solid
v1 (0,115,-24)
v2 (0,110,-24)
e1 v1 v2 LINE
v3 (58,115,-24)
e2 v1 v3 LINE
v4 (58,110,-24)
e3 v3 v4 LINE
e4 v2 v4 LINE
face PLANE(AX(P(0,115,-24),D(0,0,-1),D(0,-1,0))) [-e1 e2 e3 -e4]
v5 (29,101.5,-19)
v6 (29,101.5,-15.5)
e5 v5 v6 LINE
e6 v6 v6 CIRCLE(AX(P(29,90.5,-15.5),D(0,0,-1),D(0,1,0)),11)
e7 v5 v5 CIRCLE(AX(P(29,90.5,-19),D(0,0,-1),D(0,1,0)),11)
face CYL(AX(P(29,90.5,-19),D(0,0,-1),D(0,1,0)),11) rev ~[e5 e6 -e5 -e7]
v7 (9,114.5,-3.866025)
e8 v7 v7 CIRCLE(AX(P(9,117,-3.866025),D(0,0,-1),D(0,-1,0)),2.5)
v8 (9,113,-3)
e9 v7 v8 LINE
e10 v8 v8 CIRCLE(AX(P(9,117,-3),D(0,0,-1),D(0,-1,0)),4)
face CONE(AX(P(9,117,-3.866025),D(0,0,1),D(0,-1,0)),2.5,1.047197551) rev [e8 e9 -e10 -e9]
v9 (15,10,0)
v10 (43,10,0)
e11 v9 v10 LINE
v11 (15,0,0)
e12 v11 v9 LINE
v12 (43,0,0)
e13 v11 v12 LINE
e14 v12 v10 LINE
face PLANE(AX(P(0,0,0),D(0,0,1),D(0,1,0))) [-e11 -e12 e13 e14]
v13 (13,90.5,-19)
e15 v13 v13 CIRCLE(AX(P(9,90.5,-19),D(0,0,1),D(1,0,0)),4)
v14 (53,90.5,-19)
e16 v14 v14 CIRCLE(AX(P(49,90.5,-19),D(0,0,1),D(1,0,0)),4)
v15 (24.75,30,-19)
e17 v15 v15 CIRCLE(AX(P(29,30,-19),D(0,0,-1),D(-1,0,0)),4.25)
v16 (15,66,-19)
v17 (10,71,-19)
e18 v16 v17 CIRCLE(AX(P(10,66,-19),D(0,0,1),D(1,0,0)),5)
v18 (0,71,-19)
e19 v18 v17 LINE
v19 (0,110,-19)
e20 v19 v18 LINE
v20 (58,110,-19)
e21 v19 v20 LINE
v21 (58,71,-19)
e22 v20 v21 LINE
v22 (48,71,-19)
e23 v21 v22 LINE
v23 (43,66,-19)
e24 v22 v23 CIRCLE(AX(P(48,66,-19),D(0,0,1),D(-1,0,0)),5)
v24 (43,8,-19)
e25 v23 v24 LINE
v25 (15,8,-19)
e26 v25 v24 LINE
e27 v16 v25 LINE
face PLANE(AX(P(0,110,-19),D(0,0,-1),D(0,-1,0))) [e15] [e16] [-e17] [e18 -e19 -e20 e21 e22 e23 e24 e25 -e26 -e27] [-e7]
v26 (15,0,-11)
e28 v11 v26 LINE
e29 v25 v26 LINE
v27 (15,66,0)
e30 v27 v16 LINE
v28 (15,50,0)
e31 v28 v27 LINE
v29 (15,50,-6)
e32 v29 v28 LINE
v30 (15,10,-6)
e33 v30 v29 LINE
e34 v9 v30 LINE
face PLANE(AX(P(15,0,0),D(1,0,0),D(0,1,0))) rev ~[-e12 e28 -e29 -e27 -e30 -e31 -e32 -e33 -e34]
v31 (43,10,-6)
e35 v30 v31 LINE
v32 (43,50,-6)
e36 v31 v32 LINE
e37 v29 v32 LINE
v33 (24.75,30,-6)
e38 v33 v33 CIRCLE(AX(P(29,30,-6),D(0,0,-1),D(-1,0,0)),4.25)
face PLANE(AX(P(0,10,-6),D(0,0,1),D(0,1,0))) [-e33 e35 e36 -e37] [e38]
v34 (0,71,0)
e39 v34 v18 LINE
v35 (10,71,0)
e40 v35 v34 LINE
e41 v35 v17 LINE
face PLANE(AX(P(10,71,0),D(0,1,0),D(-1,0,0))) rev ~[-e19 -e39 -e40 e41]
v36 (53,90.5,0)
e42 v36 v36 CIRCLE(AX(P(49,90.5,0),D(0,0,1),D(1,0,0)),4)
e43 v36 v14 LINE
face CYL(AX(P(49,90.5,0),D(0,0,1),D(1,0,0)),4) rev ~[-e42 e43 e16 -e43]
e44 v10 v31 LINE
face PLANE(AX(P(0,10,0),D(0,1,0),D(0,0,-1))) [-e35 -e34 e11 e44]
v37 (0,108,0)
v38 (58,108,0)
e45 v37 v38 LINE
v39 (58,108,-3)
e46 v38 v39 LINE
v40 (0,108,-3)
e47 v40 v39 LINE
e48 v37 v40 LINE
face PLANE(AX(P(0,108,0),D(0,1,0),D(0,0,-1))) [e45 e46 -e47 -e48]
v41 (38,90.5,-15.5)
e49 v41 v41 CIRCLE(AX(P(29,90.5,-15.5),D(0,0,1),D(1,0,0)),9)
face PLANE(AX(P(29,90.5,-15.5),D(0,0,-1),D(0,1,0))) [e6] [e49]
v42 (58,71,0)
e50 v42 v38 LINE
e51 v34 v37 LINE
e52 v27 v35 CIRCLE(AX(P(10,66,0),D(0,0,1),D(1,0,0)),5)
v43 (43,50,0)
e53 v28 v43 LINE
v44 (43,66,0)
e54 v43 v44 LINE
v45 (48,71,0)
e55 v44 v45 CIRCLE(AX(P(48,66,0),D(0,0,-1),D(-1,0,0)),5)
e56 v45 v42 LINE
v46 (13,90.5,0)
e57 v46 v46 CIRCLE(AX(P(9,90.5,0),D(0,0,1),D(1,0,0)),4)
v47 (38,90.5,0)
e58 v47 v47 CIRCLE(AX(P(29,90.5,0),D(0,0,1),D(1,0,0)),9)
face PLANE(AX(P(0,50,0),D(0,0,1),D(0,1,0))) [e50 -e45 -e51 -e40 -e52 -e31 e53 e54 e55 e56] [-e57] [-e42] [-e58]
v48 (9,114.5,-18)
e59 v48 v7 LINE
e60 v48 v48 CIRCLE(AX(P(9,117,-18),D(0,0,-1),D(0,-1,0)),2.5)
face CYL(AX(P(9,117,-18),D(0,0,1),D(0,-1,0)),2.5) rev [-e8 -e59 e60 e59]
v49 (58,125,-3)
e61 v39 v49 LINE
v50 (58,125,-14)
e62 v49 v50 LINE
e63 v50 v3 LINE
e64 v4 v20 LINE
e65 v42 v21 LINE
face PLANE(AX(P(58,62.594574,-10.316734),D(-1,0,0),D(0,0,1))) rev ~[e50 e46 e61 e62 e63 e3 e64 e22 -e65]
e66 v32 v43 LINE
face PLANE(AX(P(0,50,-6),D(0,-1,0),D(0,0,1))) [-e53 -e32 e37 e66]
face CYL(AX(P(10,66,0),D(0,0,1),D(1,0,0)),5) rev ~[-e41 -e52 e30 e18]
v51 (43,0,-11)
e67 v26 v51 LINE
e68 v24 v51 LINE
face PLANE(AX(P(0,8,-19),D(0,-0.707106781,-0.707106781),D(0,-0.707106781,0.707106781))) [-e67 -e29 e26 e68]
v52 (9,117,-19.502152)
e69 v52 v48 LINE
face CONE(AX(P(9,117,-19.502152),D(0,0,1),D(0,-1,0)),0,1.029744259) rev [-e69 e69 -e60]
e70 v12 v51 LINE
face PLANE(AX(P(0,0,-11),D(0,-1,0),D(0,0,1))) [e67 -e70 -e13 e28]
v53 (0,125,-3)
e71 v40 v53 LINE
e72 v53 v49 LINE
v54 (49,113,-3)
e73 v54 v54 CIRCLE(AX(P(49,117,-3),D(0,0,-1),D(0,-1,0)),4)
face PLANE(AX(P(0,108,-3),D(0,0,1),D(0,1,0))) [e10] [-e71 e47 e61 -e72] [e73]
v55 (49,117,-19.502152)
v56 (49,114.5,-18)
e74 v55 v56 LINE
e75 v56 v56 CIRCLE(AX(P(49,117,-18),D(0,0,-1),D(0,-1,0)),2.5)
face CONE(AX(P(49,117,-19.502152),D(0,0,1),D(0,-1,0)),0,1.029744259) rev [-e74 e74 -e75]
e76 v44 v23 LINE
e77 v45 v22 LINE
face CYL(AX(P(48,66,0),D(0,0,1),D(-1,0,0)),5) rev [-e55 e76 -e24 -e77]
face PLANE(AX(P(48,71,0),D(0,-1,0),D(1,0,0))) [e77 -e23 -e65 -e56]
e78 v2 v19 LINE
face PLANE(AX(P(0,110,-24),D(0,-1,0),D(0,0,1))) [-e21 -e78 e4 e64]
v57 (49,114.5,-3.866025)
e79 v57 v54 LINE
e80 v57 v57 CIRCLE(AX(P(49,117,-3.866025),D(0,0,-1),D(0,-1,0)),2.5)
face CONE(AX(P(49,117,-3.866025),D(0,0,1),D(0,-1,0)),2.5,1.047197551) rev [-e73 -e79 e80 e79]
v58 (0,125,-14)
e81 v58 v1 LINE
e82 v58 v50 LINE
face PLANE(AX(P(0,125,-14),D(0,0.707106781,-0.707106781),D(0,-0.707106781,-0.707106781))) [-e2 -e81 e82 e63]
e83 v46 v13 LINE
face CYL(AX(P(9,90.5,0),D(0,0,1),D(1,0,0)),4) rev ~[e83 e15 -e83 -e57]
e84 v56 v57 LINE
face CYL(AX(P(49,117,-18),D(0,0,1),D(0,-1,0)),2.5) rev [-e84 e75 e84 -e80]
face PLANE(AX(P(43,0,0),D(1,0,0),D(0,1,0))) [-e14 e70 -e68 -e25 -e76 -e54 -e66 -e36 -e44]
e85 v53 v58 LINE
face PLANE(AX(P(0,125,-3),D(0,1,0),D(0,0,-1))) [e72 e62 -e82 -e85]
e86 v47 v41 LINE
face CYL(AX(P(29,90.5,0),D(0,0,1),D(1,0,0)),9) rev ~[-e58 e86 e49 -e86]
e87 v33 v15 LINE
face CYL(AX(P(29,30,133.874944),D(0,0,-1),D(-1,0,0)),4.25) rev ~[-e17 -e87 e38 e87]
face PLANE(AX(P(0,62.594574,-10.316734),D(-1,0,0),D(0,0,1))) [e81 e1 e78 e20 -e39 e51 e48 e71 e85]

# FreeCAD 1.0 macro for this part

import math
import FreeCAD as App
import Part
import Sketcher
Q = App.Units.Quantity


def add_polygon(sketch, points):
    """Adds a closed chain of lines whose ends are joined by coincident constraints."""
    first, n = sketch.GeometryCount, len(points)
    for a, b in zip(points, points[1:] + points[:1]):
        sketch.addGeometry(Part.LineSegment(App.Vector(*a, 0), App.Vector(*b, 0)), False)
    for i in range(n):
        sketch.addConstraint(Sketcher.Constraint("Coincident", first + i, 2, first + (i + 1) % n, 1))

doc = App.newDocument("Part")
params = doc.addObject("Spreadsheet::Sheet", "Params")
for row, (alias, value) in enumerate([
    ("sketch1_width", "10 mm"),
    ("sketch1_width2", "102 mm"),
    ("sketch1_width3", "5 mm"),
    ("sketch1_width4", "17 mm"),
    ("sketch1_width5", "58 mm"),
    ("pad1_length", "58 mm"),
    ("sketch2_diameter", "8 mm"),
    ("sketch2_diameter2", "18 mm"),
    ("sketch2_radius", "5 mm"),
    ("sketch2_width", "15 mm"),
    ("sketch2_height", "71 mm"),
    ("sketch3_diameter", "22 mm"),
    ("pocket2_length", "3.5 mm"),
    ("sketch4_width", "4 mm"),
    ("groove_angle", "360 deg"),
    ("linearpattern_pitch", "40 mm"),
    ("sketch5_diameter", "8.5 mm"),
    ("hole_diameter", "8.5 mm"),
], start=1):
    params.set(f"A{row}", alias)
    params.set(f"B{row}", "=" + value)
    params.setAlias(f"B{row}", alias)

body = doc.addObject("PartDesign::Body", "Body")

sketch1 = body.newObject("Sketcher::SketchObject", "Sketch")
sketch1.AttachmentSupport = (doc.getObject("YZ_Plane"), [""])
sketch1.MapMode = "FlatFace"
add_polygon(sketch1, [(10, 0), (0, 0), (0, -11), (8, -19), (110, -19), (110, -24), (115, -24), (125, -14), (125, -3), (108, -3), (108, 0), (50, 0), (50, -6), (10, -6)])
sketch1.addConstraint(Sketcher.Constraint("Horizontal", 0))
sketch1.addConstraint(Sketcher.Constraint("Vertical", 1))
sketch1.addConstraint(Sketcher.Constraint("Horizontal", 3))
sketch1.addConstraint(Sketcher.Constraint("Vertical", 4))
sketch1.addConstraint(Sketcher.Constraint("Horizontal", 5))
sketch1.addConstraint(Sketcher.Constraint("Vertical", 7))
sketch1.addConstraint(Sketcher.Constraint("Horizontal", 8))
sketch1.addConstraint(Sketcher.Constraint("Vertical", 9))
sketch1.addConstraint(Sketcher.Constraint("Horizontal", 10))
sketch1.addConstraint(Sketcher.Constraint("Vertical", 11))
sketch1.addConstraint(Sketcher.Constraint("Horizontal", 12))
sketch1.addConstraint(Sketcher.Constraint("Vertical", 13))
sketch1.addConstraint(Sketcher.Constraint("Coincident", 0, 2, -1, 1))
sketch1.addConstraint(Sketcher.Constraint("PointOnObject", 9, 2, -1))
sketch1.addConstraint(Sketcher.Constraint("Perpendicular", 2, 6))
sketch1.addConstraint(Sketcher.Constraint("Equal", 5, 4))
sketch1.addConstraint(Sketcher.Constraint("Equal", 1, 7))
sketch1.addConstraint(Sketcher.Constraint("DistanceX", 0, 2, 0, 1, Q("10 mm")))
sketch1.addConstraint(Sketcher.Constraint("DistanceX", 3, 1, 3, 2, Q("102 mm")))
sketch1.addConstraint(Sketcher.Constraint("DistanceX", 5, 1, 5, 2, Q("5 mm")))
sketch1.addConstraint(Sketcher.Constraint("DistanceX", 8, 2, 8, 1, Q("17 mm")))
sketch1.addConstraint(Sketcher.Constraint("DistanceX", 10, 2, 10, 1, Q("58 mm")))
sketch1.addConstraint(Sketcher.Constraint("DistanceX", 12, 2, 12, 1, Q("40 mm")))
sketch1.addConstraint(Sketcher.Constraint("DistanceY", 1, 2, 1, 1, Q("11 mm")))
sketch1.addConstraint(Sketcher.Constraint("DistanceY", 9, 1, 9, 2, Q("3 mm")))
sketch1.addConstraint(Sketcher.Constraint("DistanceY", 11, 2, 11, 1, Q("6 mm")))
sketch1.addConstraint(Sketcher.Constraint("Angle", 2, Q("-45 deg")))
sketch1.setExpression("Constraints[31]", "Params.sketch1_width")
sketch1.setExpression("Constraints[32]", "Params.sketch1_width2")
sketch1.setExpression("Constraints[33]", "Params.sketch1_width3")
sketch1.setExpression("Constraints[34]", "Params.sketch1_width4")
sketch1.setExpression("Constraints[35]", "Params.sketch1_width5")
pad1 = body.newObject("PartDesign::Pad", "Pad")
pad1.Profile = sketch1
pad1.setExpression("Length", "Params.pad1_length")

sketch2 = body.newObject("Sketcher::SketchObject", "Sketch001")
sketch2.AttachmentSupport = (doc.getObject("XY_Plane"), [""])
sketch2.MapMode = "FlatFace"
sketch2.addGeometry(Part.Circle(App.Vector(49, 90.5, 0), App.Vector(0, 0, 1), 4), False)
sketch2.addGeometry(Part.Circle(App.Vector(9, 90.5, 0), App.Vector(0, 0, 1), 4), False)
sketch2.addGeometry(Part.Circle(App.Vector(29, 90.5, 0), App.Vector(0, 0, 1), 9), False)
sketch2.addGeometry(Part.LineSegment(App.Vector(43, 0, 0), App.Vector(58, 0, 0)), False)
sketch2.addGeometry(Part.LineSegment(App.Vector(58, 0, 0), App.Vector(58, 71, 0)), False)
sketch2.addGeometry(Part.LineSegment(App.Vector(58, 71, 0), App.Vector(48, 71, 0)), False)
sketch2.addGeometry(Part.ArcOfCircle(Part.Circle(App.Vector(48, 66, 0), App.Vector(0, 0, 1), 5), math.radians(90), math.radians(180)), False)
sketch2.addGeometry(Part.LineSegment(App.Vector(43, 66, 0), App.Vector(43, 0, 0)), False)
sketch2.addGeometry(Part.LineSegment(App.Vector(15, 0, 0), App.Vector(15, 66, 0)), False)
sketch2.addGeometry(Part.ArcOfCircle(Part.Circle(App.Vector(10, 66, 0), App.Vector(0, 0, 1), 5), math.radians(0), math.radians(90)), False)
sketch2.addGeometry(Part.LineSegment(App.Vector(10, 71, 0), App.Vector(0, 71, 0)), False)
sketch2.addGeometry(Part.LineSegment(App.Vector(0, 71, 0), App.Vector(0, 0, 0)), False)
sketch2.addGeometry(Part.LineSegment(App.Vector(0, 0, 0), App.Vector(15, 0, 0)), False)
sketch2.addConstraint(Sketcher.Constraint("Coincident", 3, 2, 4, 1))
sketch2.addConstraint(Sketcher.Constraint("Coincident", 4, 2, 5, 1))
sketch2.addConstraint(Sketcher.Constraint("Tangent", 5, 2, 6, 1))
sketch2.addConstraint(Sketcher.Constraint("Tangent", 6, 2, 7, 1))
sketch2.addConstraint(Sketcher.Constraint("Coincident", 7, 2, 3, 1))
sketch2.addConstraint(Sketcher.Constraint("Tangent", 8, 2, 9, 1))
sketch2.addConstraint(Sketcher.Constraint("Tangent", 9, 2, 10, 1))
sketch2.addConstraint(Sketcher.Constraint("Coincident", 10, 2, 11, 1))
sketch2.addConstraint(Sketcher.Constraint("Coincident", 11, 2, 12, 1))
sketch2.addConstraint(Sketcher.Constraint("Coincident", 12, 2, 8, 1))
sketch2.addConstraint(Sketcher.Constraint("Horizontal", 3))
sketch2.addConstraint(Sketcher.Constraint("Vertical", 4))
sketch2.addConstraint(Sketcher.Constraint("Horizontal", 5))
sketch2.addConstraint(Sketcher.Constraint("Vertical", 7))
sketch2.addConstraint(Sketcher.Constraint("Vertical", 8))
sketch2.addConstraint(Sketcher.Constraint("Horizontal", 10))
sketch2.addConstraint(Sketcher.Constraint("Vertical", 11))
sketch2.addConstraint(Sketcher.Constraint("Horizontal", 12))
sketch2.addConstraint(Sketcher.Constraint("Coincident", 11, 2, -1, 1))
sketch2.addConstraint(Sketcher.Constraint("Equal", 0, 1))
sketch2.addConstraint(Sketcher.Constraint("Equal", 6, 9))
sketch2.addConstraint(Sketcher.Constraint("PointOnObject", 3, 2, -1))
sketch2.addConstraint(Sketcher.Constraint("Horizontal", 0, 3, 1, 3))
sketch2.addConstraint(Sketcher.Constraint("Horizontal", 1, 3, 2, 3))
sketch2.addConstraint(Sketcher.Constraint("Horizontal", 6, 3, 9, 3))
sketch2.addConstraint(Sketcher.Constraint("Equal", 5, 10))
sketch2.addConstraint(Sketcher.Constraint("Diameter", 0, Q("8 mm")))
sketch2.addConstraint(Sketcher.Constraint("Diameter", 2, Q("18 mm")))
sketch2.addConstraint(Sketcher.Constraint("Radius", 6, Q("5 mm")))
sketch2.addConstraint(Sketcher.Constraint("DistanceX", 3, 1, 3, 2, Q("15 mm")))
sketch2.addConstraint(Sketcher.Constraint("DistanceY", 4, 1, 4, 2, Q("71 mm")))
sketch2.addConstraint(Sketcher.Constraint("DistanceX", -1, 1, 0, 3, Q("49 mm")))
sketch2.addConstraint(Sketcher.Constraint("DistanceX", -1, 1, 1, 3, Q("9 mm")))
sketch2.addConstraint(Sketcher.Constraint("DistanceX", -1, 1, 2, 3, Q("29 mm")))
sketch2.addConstraint(Sketcher.Constraint("DistanceX", -1, 1, 6, 3, Q("48 mm")))
sketch2.addConstraint(Sketcher.Constraint("DistanceY", -1, 1, 0, 3, Q("90.5 mm")))
sketch2.setExpression("Constraints[26]", "Params.sketch2_diameter")
sketch2.setExpression("Constraints[27]", "Params.sketch2_diameter2")
sketch2.setExpression("Constraints[28]", "Params.sketch2_radius")
sketch2.setExpression("Constraints[29]", "Params.sketch2_width")
sketch2.setExpression("Constraints[30]", "Params.sketch2_height")
pocket1 = body.newObject("PartDesign::Pocket", "Pocket")
pocket1.Profile = sketch2
pocket1.Type = "ThroughAll"

sketch3 = body.newObject("Sketcher::SketchObject", "Sketch002")
sketch3.AttachmentSupport = (doc.getObject("XY_Plane"), [""])
sketch3.MapMode = "FlatFace"
sketch3.AttachmentOffset = App.Placement(App.Vector(0, 0, -19), App.Rotation())
sketch3.addGeometry(Part.Circle(App.Vector(29, 90, 0), App.Vector(0, 0, 1), 11), False)
sketch3.addConstraint(Sketcher.Constraint("Diameter", 0, Q("22 mm")))
sketch3.addConstraint(Sketcher.Constraint("DistanceX", -1, 1, 0, 3, Q("29 mm")))
sketch3.addConstraint(Sketcher.Constraint("DistanceY", -1, 1, 0, 3, Q("90.5 mm")))
sketch3.setExpression("Constraints[0]", "Params.sketch3_diameter")
pocket2 = body.newObject("PartDesign::Pocket", "Pocket001")
pocket2.Profile = sketch3
pocket2.setExpression("Length", "Params.pocket2_length")
pocket2.Reversed = True

sketch4 = body.newObject("Sketcher::SketchObject", "Sketch003")
sketch4.AttachmentSupport = (doc.getObject("YZ_Plane"), [""])
sketch4.MapMode = "FlatFace"
sketch4.AttachmentOffset = App.Placement(App.Vector(0, 0, 49), App.Rotation())
add_polygon(sketch4, [(117, -19.5), (117, -3), (113, -3), (114.5, -3.9), (114.5, -18)])
sketch4.addGeometry(Part.LineSegment(App.Vector(117, -3, 0), App.Vector(117, -19.5, 0)), True)
sketch4.addConstraint(Sketcher.Constraint("Vertical", 0))
sketch4.addConstraint(Sketcher.Constraint("Horizontal", 1))
sketch4.addConstraint(Sketcher.Constraint("Vertical", 3))
sketch4.addConstraint(Sketcher.Constraint("Vertical", 5))
sketch4.addConstraint(Sketcher.Constraint("Coincident", 5, 1, 0, 2))
sketch4.addConstraint(Sketcher.Constraint("Equal", 0, 5))
sketch4.addConstraint(Sketcher.Constraint("DistanceX", 1, 2, 1, 1, Q("4 mm")))
sketch4.addConstraint(Sketcher.Constraint("Angle", 2, Q("-30 deg")))
sketch4.addConstraint(Sketcher.Constraint("Angle", 4, Q("-31 deg")))
sketch4.addConstraint(Sketcher.Constraint("DistanceX", -1, 1, 0, 2, Q("117 mm")))
sketch4.addConstraint(Sketcher.Constraint("DistanceY", 0, 2, -1, 1, Q("3 mm")))
sketch4.addConstraint(Sketcher.Constraint("DistanceY", 3, 2, -1, 1, Q("18 mm")))
sketch4.addConstraint(Sketcher.Constraint("DistanceX", -1, 1, 2, 2, Q("114.5 mm")))
sketch4.setExpression("Constraints[11]", "Params.sketch4_width")
groove = body.newObject("PartDesign::Groove", "Groove")
groove.Profile = sketch4
groove.ReferenceAxis = (sketch4, ["Axis0"])
groove.setExpression("Angle", "Params.groove_angle")
doc.recompute()

linearpattern = body.newObject("PartDesign::LinearPattern", "LinearPattern")
linearpattern.Originals = [groove]
linearpattern.Direction = (doc.getObject("X_Axis"), [""])
linearpattern.Mode = "offset"
linearpattern.setExpression("Offset", "Params.linearpattern_pitch")
linearpattern.Occurrences = 2
linearpattern.Reversed = True
body.Tip = linearpattern

sketch5 = body.newObject("Sketcher::SketchObject", "Sketch004")
sketch5.AttachmentSupport = (doc.getObject("XY_Plane"), [""])
sketch5.MapMode = "FlatFace"
sketch5.AttachmentOffset = App.Placement(App.Vector(0, 0, -6), App.Rotation())
sketch5.addGeometry(Part.Circle(App.Vector(29, 30, 0), App.Vector(0, 0, 1), 4.2), False)
sketch5.addConstraint(Sketcher.Constraint("Diameter", 0, Q("8.5 mm")))
sketch5.addConstraint(Sketcher.Constraint("DistanceX", -1, 1, 0, 3, Q("29 mm")))
sketch5.addConstraint(Sketcher.Constraint("DistanceY", -1, 1, 0, 3, Q("30 mm")))
sketch5.setExpression("Constraints[0]", "Params.sketch5_diameter")
doc.recompute()
hole = body.newObject("PartDesign::Hole", "Hole")
hole.Profile = sketch5
hole.ThreadType = "None"
hole.setExpression("Diameter", "Params.hole_diameter")
hole.DepthType = "ThroughAll"

doc.recompute()
